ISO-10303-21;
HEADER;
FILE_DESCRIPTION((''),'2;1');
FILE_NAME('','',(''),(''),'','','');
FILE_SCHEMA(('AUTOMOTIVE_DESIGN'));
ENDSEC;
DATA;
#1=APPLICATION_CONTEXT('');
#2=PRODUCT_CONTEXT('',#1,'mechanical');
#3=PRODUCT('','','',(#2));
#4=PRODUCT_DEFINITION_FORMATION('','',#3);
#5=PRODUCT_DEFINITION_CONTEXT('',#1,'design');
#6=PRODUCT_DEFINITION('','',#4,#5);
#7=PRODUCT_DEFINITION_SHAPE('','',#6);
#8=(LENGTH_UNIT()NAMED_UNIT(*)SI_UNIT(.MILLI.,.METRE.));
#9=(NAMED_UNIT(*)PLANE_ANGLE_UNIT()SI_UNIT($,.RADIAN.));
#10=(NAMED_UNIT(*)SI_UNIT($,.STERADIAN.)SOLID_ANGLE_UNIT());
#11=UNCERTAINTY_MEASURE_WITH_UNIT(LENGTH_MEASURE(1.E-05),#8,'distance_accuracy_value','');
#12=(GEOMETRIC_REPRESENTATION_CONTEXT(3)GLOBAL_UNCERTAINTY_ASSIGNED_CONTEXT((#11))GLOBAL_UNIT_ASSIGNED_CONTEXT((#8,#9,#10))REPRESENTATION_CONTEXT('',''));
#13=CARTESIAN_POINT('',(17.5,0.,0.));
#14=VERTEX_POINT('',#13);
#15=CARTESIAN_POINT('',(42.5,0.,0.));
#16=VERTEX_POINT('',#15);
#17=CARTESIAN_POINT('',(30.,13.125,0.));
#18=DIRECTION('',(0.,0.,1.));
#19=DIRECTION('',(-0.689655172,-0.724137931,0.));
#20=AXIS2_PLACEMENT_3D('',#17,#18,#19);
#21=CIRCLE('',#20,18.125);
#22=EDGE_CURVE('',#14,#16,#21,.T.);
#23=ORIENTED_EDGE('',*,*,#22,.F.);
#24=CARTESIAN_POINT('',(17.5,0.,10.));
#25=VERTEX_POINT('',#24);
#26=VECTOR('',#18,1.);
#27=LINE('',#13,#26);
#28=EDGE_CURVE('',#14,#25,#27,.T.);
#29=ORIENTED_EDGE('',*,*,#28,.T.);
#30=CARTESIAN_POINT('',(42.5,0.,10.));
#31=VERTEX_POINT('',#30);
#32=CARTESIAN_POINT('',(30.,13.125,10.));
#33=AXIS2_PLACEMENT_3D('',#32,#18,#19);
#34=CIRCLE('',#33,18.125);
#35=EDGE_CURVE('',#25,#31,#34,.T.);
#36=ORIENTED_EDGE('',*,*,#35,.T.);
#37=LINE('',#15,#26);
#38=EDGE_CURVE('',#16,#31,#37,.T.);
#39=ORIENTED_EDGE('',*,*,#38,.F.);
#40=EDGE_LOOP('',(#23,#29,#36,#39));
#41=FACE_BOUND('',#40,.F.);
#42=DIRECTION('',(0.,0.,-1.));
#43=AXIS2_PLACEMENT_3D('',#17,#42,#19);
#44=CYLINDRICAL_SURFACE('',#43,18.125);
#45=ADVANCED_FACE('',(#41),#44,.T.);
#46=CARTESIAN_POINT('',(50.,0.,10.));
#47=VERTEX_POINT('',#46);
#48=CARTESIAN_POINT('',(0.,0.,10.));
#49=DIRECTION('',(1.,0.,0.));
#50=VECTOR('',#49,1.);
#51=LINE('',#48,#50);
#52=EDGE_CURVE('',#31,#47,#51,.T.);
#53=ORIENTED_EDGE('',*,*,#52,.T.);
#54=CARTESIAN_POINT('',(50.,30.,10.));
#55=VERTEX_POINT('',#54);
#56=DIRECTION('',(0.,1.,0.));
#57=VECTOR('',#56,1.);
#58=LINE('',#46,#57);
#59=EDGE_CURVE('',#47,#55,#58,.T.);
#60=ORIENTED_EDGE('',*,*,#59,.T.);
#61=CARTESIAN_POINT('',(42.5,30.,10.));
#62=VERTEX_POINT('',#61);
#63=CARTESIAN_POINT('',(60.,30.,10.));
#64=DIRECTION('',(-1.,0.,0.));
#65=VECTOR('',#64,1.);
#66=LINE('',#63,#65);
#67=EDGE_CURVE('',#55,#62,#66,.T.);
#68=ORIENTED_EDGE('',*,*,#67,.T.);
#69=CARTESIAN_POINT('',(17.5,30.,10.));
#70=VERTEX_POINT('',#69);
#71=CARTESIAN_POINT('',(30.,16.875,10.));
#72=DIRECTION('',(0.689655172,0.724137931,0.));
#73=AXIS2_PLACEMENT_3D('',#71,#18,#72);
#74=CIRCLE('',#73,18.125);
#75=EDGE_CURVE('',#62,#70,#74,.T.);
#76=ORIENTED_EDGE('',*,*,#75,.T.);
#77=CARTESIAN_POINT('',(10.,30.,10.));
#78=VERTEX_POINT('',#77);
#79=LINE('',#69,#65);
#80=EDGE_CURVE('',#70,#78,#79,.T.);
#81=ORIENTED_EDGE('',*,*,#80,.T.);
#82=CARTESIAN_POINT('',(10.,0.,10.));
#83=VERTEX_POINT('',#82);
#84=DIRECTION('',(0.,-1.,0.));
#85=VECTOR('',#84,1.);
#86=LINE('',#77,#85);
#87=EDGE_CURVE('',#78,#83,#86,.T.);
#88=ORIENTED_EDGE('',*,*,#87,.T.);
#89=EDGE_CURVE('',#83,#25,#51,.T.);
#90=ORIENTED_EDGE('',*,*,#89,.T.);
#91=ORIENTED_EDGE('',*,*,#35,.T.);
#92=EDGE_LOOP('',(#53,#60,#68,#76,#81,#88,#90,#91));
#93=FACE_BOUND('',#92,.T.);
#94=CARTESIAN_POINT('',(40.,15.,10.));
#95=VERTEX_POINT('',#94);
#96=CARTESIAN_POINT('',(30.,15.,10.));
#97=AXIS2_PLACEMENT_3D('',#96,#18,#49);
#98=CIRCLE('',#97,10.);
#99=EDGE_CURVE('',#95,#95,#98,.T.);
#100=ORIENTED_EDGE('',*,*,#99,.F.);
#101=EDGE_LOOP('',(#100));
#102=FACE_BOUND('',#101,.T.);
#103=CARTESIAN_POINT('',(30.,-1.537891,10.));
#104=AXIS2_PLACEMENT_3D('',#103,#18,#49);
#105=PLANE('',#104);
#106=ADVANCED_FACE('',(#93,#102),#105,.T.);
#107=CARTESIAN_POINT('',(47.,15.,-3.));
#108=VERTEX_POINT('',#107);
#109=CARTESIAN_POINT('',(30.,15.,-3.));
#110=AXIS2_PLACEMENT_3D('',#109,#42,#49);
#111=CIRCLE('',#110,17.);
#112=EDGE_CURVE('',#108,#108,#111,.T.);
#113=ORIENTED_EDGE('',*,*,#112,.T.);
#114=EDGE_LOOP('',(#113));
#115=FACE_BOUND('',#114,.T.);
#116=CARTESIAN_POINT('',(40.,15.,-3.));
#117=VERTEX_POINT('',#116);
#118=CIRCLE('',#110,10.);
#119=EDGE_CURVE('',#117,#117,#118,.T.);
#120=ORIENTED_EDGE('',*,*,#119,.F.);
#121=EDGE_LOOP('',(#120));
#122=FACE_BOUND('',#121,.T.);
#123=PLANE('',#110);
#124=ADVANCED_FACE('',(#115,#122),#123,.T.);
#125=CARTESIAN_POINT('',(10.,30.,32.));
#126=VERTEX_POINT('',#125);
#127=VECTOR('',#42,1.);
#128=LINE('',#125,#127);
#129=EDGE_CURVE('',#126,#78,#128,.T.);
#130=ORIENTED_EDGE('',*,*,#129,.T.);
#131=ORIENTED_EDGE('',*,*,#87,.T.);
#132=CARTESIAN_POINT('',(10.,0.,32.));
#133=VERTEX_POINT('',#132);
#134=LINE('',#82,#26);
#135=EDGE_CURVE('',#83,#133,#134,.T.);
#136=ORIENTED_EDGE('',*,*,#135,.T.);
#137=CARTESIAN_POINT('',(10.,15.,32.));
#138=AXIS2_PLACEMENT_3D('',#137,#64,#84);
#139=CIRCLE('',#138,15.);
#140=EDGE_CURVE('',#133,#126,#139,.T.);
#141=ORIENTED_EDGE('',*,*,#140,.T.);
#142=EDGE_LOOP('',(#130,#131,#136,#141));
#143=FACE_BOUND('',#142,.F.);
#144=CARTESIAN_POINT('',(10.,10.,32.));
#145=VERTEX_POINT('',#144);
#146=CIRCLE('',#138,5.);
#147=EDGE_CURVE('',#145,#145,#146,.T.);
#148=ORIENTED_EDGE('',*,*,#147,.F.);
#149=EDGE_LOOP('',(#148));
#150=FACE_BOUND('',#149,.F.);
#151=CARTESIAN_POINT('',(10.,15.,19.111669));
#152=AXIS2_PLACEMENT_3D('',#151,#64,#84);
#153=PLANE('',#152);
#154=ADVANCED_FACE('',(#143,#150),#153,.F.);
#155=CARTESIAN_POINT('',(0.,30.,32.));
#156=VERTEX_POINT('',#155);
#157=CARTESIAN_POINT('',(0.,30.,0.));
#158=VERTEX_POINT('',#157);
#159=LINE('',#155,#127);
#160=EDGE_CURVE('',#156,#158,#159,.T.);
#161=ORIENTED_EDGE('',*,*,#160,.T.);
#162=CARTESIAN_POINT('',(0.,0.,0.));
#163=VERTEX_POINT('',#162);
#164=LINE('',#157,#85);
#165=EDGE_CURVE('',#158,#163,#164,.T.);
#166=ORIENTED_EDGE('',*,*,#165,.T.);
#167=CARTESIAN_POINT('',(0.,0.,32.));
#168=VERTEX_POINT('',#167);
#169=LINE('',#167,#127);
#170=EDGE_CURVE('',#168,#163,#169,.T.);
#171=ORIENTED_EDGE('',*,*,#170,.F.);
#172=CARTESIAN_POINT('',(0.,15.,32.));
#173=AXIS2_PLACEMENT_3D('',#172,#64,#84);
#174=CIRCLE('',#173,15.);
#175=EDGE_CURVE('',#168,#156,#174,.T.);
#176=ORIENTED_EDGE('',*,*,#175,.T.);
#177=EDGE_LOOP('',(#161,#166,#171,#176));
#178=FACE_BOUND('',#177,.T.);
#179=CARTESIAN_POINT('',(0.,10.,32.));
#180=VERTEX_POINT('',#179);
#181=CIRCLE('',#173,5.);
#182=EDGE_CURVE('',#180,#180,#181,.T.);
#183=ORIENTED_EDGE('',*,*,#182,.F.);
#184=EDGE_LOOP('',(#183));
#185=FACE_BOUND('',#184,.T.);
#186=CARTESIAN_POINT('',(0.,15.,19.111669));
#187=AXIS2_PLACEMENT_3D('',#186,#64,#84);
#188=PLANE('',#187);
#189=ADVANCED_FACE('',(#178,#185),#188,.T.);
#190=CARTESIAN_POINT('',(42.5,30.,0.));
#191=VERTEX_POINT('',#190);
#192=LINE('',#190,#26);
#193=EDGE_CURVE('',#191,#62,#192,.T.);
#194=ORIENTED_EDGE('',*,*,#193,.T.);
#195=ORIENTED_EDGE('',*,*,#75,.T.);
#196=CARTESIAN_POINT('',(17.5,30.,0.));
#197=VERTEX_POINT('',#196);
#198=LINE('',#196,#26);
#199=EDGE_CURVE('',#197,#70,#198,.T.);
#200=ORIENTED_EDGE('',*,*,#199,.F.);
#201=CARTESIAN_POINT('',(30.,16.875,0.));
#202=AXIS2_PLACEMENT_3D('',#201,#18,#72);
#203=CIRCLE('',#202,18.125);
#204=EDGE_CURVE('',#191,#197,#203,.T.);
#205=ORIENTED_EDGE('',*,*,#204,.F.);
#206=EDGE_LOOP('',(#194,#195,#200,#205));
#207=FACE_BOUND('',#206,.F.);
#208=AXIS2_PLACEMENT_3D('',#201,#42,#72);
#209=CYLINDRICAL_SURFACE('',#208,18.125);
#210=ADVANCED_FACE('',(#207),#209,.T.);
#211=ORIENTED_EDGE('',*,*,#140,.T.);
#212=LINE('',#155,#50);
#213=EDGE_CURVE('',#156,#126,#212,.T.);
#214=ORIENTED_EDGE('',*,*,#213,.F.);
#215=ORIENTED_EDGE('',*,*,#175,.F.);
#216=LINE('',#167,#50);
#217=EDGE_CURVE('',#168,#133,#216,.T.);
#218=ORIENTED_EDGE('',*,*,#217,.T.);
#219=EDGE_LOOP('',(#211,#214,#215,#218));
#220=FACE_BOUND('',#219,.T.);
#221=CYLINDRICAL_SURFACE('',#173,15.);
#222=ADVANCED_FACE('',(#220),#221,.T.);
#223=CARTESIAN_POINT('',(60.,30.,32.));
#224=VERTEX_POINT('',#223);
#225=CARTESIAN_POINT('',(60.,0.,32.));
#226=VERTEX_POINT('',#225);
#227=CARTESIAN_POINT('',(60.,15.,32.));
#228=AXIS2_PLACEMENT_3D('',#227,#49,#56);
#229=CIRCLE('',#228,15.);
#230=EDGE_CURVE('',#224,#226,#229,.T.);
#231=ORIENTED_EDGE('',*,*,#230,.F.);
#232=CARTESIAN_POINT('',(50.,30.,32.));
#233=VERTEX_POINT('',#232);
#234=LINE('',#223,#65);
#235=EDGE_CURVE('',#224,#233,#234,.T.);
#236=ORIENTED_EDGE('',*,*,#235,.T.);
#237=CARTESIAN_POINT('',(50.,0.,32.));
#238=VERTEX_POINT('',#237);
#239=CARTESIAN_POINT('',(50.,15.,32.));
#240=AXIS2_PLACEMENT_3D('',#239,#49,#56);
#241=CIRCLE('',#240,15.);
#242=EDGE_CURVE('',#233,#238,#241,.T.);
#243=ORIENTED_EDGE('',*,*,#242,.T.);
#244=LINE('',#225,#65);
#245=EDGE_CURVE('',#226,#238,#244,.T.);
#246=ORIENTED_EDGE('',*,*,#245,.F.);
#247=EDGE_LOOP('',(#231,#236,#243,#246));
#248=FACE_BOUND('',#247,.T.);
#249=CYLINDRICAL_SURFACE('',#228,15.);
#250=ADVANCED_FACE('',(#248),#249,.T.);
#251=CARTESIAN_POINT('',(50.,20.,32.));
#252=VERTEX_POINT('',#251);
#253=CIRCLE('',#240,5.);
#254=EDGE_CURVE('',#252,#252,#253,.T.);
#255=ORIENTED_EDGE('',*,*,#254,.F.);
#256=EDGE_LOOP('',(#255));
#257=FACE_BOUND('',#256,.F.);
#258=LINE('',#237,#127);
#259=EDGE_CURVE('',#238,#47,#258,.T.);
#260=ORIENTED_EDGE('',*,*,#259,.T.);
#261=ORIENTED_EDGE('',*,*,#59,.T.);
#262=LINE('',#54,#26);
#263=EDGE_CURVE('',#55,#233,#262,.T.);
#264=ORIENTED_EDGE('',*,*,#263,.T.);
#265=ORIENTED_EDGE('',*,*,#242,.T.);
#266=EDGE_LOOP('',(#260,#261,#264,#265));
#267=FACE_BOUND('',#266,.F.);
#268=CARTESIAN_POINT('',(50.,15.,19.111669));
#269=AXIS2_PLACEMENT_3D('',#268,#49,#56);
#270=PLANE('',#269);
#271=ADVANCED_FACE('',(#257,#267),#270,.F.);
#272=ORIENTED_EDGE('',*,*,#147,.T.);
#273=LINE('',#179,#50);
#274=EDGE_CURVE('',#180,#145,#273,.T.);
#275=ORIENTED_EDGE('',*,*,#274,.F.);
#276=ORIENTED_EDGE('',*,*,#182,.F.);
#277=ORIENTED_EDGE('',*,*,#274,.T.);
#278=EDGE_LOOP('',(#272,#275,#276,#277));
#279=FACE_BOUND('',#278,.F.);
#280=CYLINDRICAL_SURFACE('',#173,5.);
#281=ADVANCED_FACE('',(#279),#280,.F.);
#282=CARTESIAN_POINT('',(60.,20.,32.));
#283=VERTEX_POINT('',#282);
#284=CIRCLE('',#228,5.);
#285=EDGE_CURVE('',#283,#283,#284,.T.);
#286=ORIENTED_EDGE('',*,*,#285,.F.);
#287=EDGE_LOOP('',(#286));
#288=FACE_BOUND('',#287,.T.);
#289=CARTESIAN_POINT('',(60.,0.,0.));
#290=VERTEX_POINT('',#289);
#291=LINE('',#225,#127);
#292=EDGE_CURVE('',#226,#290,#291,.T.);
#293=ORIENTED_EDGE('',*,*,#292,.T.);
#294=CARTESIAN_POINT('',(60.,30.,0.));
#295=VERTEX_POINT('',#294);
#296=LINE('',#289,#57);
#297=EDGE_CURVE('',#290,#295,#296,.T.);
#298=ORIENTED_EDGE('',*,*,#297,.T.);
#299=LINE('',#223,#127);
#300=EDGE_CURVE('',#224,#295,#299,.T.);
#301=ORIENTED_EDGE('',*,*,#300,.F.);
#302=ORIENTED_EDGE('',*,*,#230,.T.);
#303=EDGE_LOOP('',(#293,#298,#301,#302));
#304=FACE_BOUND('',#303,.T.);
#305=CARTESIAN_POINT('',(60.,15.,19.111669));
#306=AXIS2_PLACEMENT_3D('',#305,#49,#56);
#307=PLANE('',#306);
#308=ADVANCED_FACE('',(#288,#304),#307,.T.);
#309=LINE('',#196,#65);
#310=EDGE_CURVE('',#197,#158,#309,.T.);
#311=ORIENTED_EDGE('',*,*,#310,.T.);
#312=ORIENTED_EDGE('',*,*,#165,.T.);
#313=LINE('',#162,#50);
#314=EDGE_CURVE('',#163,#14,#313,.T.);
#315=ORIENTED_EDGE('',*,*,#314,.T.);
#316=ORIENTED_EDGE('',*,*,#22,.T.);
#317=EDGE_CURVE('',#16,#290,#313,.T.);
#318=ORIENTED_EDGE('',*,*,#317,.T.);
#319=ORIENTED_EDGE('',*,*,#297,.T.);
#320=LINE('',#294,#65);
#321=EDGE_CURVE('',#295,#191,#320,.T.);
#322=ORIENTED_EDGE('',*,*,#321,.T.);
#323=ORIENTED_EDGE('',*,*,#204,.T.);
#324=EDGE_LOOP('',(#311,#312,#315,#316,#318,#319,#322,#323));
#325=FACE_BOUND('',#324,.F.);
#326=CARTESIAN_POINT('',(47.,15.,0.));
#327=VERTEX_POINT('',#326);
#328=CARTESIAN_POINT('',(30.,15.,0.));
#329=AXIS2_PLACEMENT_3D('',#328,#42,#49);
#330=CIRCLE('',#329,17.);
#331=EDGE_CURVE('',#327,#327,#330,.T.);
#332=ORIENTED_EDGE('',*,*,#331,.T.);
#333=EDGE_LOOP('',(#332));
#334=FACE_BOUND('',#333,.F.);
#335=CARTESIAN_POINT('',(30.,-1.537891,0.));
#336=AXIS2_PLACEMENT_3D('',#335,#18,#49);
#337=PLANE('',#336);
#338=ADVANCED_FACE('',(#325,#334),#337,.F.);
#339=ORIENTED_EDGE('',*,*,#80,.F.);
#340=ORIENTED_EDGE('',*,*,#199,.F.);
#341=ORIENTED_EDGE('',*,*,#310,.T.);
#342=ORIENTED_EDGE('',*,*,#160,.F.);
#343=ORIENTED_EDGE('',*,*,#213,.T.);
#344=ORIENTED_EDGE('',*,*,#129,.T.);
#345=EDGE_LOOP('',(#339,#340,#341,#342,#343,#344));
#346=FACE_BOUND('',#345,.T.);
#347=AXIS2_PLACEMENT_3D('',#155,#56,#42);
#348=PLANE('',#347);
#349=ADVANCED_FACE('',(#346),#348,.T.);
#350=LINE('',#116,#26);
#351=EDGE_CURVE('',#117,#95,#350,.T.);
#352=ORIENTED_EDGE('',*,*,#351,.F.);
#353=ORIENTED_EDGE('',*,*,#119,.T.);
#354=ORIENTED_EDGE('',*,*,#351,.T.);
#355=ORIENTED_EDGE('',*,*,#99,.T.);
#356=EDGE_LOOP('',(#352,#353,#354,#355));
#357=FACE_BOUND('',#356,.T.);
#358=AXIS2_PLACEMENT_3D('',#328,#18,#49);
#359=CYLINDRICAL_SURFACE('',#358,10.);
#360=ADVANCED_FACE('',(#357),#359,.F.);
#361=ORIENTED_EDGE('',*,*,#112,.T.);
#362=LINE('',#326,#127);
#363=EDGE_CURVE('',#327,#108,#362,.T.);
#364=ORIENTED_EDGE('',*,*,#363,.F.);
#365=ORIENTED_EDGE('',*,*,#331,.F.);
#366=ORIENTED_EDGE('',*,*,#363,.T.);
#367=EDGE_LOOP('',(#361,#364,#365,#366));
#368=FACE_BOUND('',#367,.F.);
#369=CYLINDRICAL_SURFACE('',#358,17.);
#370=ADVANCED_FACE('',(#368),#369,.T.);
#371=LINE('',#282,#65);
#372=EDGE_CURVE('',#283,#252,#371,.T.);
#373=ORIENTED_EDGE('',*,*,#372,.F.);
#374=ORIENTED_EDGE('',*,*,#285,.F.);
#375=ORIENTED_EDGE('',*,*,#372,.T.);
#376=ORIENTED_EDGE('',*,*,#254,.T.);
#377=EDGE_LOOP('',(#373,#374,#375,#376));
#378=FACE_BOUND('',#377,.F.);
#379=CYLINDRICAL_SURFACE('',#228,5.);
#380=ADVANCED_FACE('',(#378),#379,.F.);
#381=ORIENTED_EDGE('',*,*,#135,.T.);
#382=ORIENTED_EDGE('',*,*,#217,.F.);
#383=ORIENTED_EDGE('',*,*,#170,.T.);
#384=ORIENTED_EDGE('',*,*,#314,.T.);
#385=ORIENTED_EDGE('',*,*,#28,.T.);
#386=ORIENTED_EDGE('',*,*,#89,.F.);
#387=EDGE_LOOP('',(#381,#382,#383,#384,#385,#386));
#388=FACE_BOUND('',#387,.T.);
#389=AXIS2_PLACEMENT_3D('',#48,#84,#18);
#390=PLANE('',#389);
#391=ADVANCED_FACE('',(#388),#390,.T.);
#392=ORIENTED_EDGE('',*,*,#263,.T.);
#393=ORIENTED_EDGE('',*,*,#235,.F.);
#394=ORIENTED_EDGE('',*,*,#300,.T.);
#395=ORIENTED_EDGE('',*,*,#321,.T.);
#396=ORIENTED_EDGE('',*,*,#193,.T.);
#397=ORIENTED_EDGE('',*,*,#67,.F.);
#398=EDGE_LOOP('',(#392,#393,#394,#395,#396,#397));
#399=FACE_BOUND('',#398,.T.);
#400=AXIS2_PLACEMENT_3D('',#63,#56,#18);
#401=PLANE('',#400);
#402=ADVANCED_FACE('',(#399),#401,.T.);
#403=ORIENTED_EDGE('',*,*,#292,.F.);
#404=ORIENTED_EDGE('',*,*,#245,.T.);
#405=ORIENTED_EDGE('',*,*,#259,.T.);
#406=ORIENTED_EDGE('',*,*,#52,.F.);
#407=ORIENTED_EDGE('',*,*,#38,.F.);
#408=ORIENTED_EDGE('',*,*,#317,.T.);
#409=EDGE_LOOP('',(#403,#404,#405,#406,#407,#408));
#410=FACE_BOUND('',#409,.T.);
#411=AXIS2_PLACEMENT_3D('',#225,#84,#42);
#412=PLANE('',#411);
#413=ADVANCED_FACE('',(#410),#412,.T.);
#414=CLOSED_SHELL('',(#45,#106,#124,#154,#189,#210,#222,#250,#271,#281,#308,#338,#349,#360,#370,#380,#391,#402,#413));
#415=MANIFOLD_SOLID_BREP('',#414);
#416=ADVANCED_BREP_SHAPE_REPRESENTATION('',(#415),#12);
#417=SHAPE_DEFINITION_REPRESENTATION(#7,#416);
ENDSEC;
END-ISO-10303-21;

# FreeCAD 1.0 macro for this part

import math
import FreeCAD as App
import Part
import Sketcher
Q = App.Units.Quantity

doc = App.newDocument("Part")
body = doc.addObject("PartDesign::Body", "Body")

# Sketch on XY plane
sketch1 = body.newObject("Sketcher::SketchObject", "Sketch")
sketch1.AttachmentSupport = (doc.getObject("XY_Plane"), [""])
sketch1.MapMode = "FlatFace"
sketch1.addGeometry([
    Part.ArcOfCircle(Part.Circle(App.Vector(30, 13.125, 0), App.Vector(0, 0, 1), 18.125), math.radians(-133.602819), math.radians(-46.397181)),  # 0
    Part.LineSegment(App.Vector(42.5, 0, 0), App.Vector(60, 0, 0)),  # 1
    Part.LineSegment(App.Vector(60, 0, 0), App.Vector(60, 30, 0)),  # 2
    Part.LineSegment(App.Vector(60, 30, 0), App.Vector(42.5, 30, 0)),  # 3
    Part.ArcOfCircle(Part.Circle(App.Vector(30, 16.875, 0), App.Vector(0, 0, 1), 18.125), math.radians(46.397181), math.radians(133.602819)),  # 4
    Part.LineSegment(App.Vector(17.5, 30, 0), App.Vector(0, 30, 0)),  # 5
    Part.LineSegment(App.Vector(0, 30, 0), App.Vector(0, 0, 0)),  # 6
    Part.LineSegment(App.Vector(0, 0, 0), App.Vector(17.5, 0, 0)),  # 7
], False)
sketch1.addConstraint([
    Sketcher.Constraint("Coincident", 0, 2, 1, 1),
    Sketcher.Constraint("Coincident", 1, 2, 2, 1),
    Sketcher.Constraint("Coincident", 2, 2, 3, 1),
    Sketcher.Constraint("Coincident", 3, 2, 4, 1),
    Sketcher.Constraint("Coincident", 4, 2, 5, 1),
    Sketcher.Constraint("Coincident", 5, 2, 6, 1),
    Sketcher.Constraint("Coincident", 6, 2, 7, 1),
    Sketcher.Constraint("Coincident", 7, 2, 0, 1),
    Sketcher.Constraint("Horizontal", 1),
    Sketcher.Constraint("Vertical", 2),
    Sketcher.Constraint("Horizontal", 3),
    Sketcher.Constraint("Horizontal", 5),
    Sketcher.Constraint("Vertical", 6),
    Sketcher.Constraint("Horizontal", 7),
    Sketcher.Constraint("Coincident", 6, 2, -1, 1),
    Sketcher.Constraint("Equal", 0, 4),
    Sketcher.Constraint("PointOnObject", 0, 2, -1),
    Sketcher.Constraint("Horizontal", 3, 2, 4, 2),
    Sketcher.Constraint("Vertical", 0, 3, 4, 3),
    Sketcher.Constraint("Vertical", 0, 2, 3, 2),
    Sketcher.Constraint("Equal", 3, 5),
    Sketcher.Constraint("DistanceY", 2, 1, 2, 2, Q("30 mm")),
    Sketcher.Constraint("DistanceX", 1, 1, 1, 2, Q("17.5 mm")),
    Sketcher.Constraint("DistanceX", -1, 1, 0, 3, Q("30 mm")),
    Sketcher.Constraint("Radius", 0, Q("18.125 mm")),
])
pad1 = body.newObject("PartDesign::Pad", "Pad")
pad1.Profile = sketch1
pad1.Length = 10

# Sketch on XY plane
sketch2 = body.newObject("Sketcher::SketchObject", "Sketch001")
sketch2.AttachmentSupport = (doc.getObject("XY_Plane"), [""])
sketch2.MapMode = "FlatFace"
sketch2.AttachmentOffset = App.Placement(App.Vector(0, 0, 10), App.Rotation())
sketch2.addGeometry(Part.Circle(App.Vector(30, 15, 0), App.Vector(0, 0, 1), 10), False)
sketch2.addConstraint([
    Sketcher.Constraint("Diameter", 0, Q("20 mm")),
    Sketcher.Constraint("DistanceX", -1, 1, 0, 3, Q("30 mm")),
    Sketcher.Constraint("DistanceY", -1, 1, 0, 3, Q("15 mm")),
])
pocket1 = body.newObject("PartDesign::Pocket", "Pocket")
pocket1.Profile = sketch2
pocket1.Type = "ThroughAll"

# Sketch on XY plane
sketch3 = body.newObject("Sketcher::SketchObject", "Sketch002")
sketch3.AttachmentSupport = (doc.getObject("XY_Plane"), [""])
sketch3.MapMode = "FlatFace"
sketch3.addGeometry([
    Part.Circle(App.Vector(30, 15, 0), App.Vector(0, 0, 1), 17),
    Part.Circle(App.Vector(30, 15, 0), App.Vector(0, 0, 1), 10),
], False)
sketch3.addConstraint([
    Sketcher.Constraint("Coincident", 1, 3, 0, 3),
    Sketcher.Constraint("Diameter", 0, Q("34 mm")),
    Sketcher.Constraint("Diameter", 1, Q("20 mm")),
    Sketcher.Constraint("DistanceX", -1, 1, 0, 3, Q("30 mm")),
    Sketcher.Constraint("DistanceY", -1, 1, 0, 3, Q("15 mm")),
])
pad2 = body.newObject("PartDesign::Pad", "Pad001")
pad2.Profile = sketch3
pad2.Length = 3
pad2.Reversed = True

# Sketch on YZ plane
sketch4 = body.newObject("Sketcher::SketchObject", "Sketch003")
sketch4.AttachmentSupport = (doc.getObject("YZ_Plane"), [""])
sketch4.MapMode = "FlatFace"
sketch4.AttachmentOffset = App.Placement(App.Vector(0, 0, 60), App.Rotation())
sketch4.addGeometry([
    Part.LineSegment(App.Vector(30, 10, 0), App.Vector(30, 32, 0)),  # 0
    Part.ArcOfCircle(Part.Circle(App.Vector(15, 32, 0), App.Vector(0, 0, 1), 15), math.radians(0), math.radians(180)),  # 1
    Part.LineSegment(App.Vector(0, 32, 0), App.Vector(0, 10, 0)),  # 2
    Part.LineSegment(App.Vector(0, 10, 0), App.Vector(30, 10, 0)),  # 3
    Part.Circle(App.Vector(15, 32, 0), App.Vector(0, 0, 1), 5),  # 4
], False)
sketch4.addConstraint([
    Sketcher.Constraint("Tangent", 0, 2, 1, 1),
    Sketcher.Constraint("Tangent", 1, 2, 2, 1),
    Sketcher.Constraint("Coincident", 2, 2, 3, 1),
    Sketcher.Constraint("Coincident", 3, 2, 0, 1),
    Sketcher.Constraint("Vertical", 0),
    Sketcher.Constraint("Vertical", 2),
    Sketcher.Constraint("Horizontal", 3),
    Sketcher.Constraint("Coincident", 4, 3, 1, 3),
    Sketcher.Constraint("PointOnObject", 1, 2, -2),
    Sketcher.Constraint("Diameter", 4, Q("10 mm")),
    Sketcher.Constraint("Radius", 1, Q("15 mm")),
    Sketcher.Constraint("DistanceY", 0, 1, 0, 2, Q("22 mm")),
    Sketcher.Constraint("DistanceY", -1, 1, 1, 3, Q("32 mm")),
])
pad3 = body.newObject("PartDesign::Pad", "Pad002")
pad3.Profile = sketch4
pad3.Length = 10
pad3.Reversed = True

# Sketch on YZ plane
sketch5 = body.newObject("Sketcher::SketchObject", "Sketch004")
sketch5.AttachmentSupport = (doc.getObject("YZ_Plane"), [""])
sketch5.MapMode = "FlatFace"
sketch5.addGeometry([
    Part.LineSegment(App.Vector(0, 10, 0), App.Vector(0, 32, 0)),  # 0
    Part.ArcOfCircle(Part.Circle(App.Vector(15, 32, 0), App.Vector(0, 0, 1), 15), math.radians(0), math.radians(180)),  # 1
    Part.LineSegment(App.Vector(30, 32, 0), App.Vector(30, 10, 0)),  # 2
    Part.LineSegment(App.Vector(30, 10, 0), App.Vector(0, 10, 0)),  # 3
    Part.Circle(App.Vector(15, 32, 0), App.Vector(0, 0, 1), 5),  # 4
], False)
sketch5.addConstraint([
    Sketcher.Constraint("Tangent", 0, 2, 1, 2),
    Sketcher.Constraint("Tangent", 1, 1, 2, 1),
    Sketcher.Constraint("Coincident", 2, 2, 3, 1),
    Sketcher.Constraint("Coincident", 3, 2, 0, 1),
    Sketcher.Constraint("Vertical", 0),
    Sketcher.Constraint("Vertical", 2),
    Sketcher.Constraint("Horizontal", 3),
    Sketcher.Constraint("Coincident", 4, 3, 1, 3),
    Sketcher.Constraint("PointOnObject", 0, 2, -2),
    Sketcher.Constraint("Diameter", 4, Q("10 mm")),
    Sketcher.Constraint("Radius", 1, Q("15 mm")),
    Sketcher.Constraint("DistanceY", 0, 1, 0, 2, Q("22 mm")),
    Sketcher.Constraint("DistanceY", -1, 1, 1, 3, Q("32 mm")),
])
pad4 = body.newObject("PartDesign::Pad", "Pad003")
pad4.Profile = sketch5
pad4.Length = 10

doc.recompute()
